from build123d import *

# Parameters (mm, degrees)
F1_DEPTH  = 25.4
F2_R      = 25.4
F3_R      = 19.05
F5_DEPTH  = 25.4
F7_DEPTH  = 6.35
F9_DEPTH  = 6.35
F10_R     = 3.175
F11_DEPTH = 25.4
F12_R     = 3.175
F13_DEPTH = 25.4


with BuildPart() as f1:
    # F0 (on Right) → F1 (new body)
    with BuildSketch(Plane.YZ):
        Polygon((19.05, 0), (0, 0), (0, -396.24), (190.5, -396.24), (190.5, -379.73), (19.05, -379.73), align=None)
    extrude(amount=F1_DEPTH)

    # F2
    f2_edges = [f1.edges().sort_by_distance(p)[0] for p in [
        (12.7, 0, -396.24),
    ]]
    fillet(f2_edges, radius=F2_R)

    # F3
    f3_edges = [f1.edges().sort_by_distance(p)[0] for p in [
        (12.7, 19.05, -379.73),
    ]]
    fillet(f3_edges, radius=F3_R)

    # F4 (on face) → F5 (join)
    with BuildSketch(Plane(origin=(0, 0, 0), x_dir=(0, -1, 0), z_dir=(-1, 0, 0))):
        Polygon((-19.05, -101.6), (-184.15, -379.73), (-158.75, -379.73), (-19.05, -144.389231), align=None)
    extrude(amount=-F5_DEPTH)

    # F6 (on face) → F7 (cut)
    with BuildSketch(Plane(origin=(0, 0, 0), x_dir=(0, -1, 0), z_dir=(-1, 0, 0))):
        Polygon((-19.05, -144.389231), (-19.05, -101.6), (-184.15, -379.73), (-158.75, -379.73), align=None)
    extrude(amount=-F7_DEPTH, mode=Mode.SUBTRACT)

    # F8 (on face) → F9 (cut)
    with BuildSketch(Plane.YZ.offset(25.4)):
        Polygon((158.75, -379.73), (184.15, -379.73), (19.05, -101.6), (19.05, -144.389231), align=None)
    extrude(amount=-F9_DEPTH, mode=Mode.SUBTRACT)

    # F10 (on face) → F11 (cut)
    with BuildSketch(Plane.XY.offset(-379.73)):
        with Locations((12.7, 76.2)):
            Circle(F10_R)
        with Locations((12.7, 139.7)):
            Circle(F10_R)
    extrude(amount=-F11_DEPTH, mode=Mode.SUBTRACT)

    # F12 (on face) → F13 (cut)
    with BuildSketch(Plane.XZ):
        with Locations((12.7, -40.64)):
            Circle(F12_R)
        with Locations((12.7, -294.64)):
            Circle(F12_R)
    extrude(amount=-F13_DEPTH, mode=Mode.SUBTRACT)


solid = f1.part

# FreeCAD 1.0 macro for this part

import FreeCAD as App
import Part
import Sketcher
from FreeCAD import Vector
Q = App.Units.Quantity


def edges_at(feature, points):
    """Names of the edges that pass closest to the given points."""
    edges = feature.Shape.Edges
    near = lambda p: min(range(len(edges)), key=lambda i: edges[i].distToShape(Part.Vertex(*p))[0])
    return sorted({f"Edge{near(p) + 1}" for p in points})

doc = App.newDocument("Part")
body = doc.addObject("PartDesign::Body", "Body")

# Sketch on YZ plane
sketch1 = doc.addObject("Sketcher::SketchObject", "Sketch")
body.addObject(sketch1)
sketch1.AttachmentSupport = (doc.YZ_Plane, [""])
sketch1.MapMode = "FlatFace"
sketch1.addGeometry([
    Part.LineSegment(Vector(19.05, 0, 0), Vector(0, 0, 0)),  # 0
    Part.LineSegment(Vector(0, 0, 0), Vector(0, -396.24, 0)),  # 1
    Part.LineSegment(Vector(0, -396.24, 0), Vector(190.5, -396.24, 0)),  # 2
    Part.LineSegment(Vector(190.5, -396.24, 0), Vector(190.5, -379.73, 0)),  # 3
    Part.LineSegment(Vector(190.5, -379.73, 0), Vector(19.05, -379.73, 0)),  # 4
    Part.LineSegment(Vector(19.05, -379.73, 0), Vector(19.05, 0, 0)),  # 5
], False)
sketch1.addConstraint([
    Sketcher.Constraint("Coincident", 0, 2, 1, 1),
    Sketcher.Constraint("Coincident", 1, 2, 2, 1),
    Sketcher.Constraint("Coincident", 2, 2, 3, 1),
    Sketcher.Constraint("Coincident", 3, 2, 4, 1),
    Sketcher.Constraint("Coincident", 4, 2, 5, 1),
    Sketcher.Constraint("Coincident", 5, 2, 0, 1),
    Sketcher.Constraint("Horizontal", 0),
    Sketcher.Constraint("Vertical", 1),
    Sketcher.Constraint("Horizontal", 2),
    Sketcher.Constraint("Vertical", 3),
    Sketcher.Constraint("Horizontal", 4),
    Sketcher.Constraint("Vertical", 5),
    Sketcher.Constraint("Coincident", 0, 2, -1, 1),
    Sketcher.Constraint("DistanceX", 2, 1, 2, 2, Q("7.5 in")),
    Sketcher.Constraint("DistanceY", 1, 2, 1, 1, Q("15.6 in")),
    Sketcher.Constraint("DistanceX", 0, 2, 0, 1, Q("0.75 in")),
    Sketcher.Constraint("DistanceY", 3, 1, 3, 2, Q("0.65 in")),
])
pad1 = doc.addObject("PartDesign::Pad", "Pad")
body.addObject(pad1)
pad1.Profile = sketch1
pad1.Length = Q("1 in")
doc.recompute()

fillet = doc.addObject("PartDesign::Fillet", "Fillet")
body.addObject(fillet)
fillet.Base = (pad1, edges_at(pad1, [(12.7, 0, -396.24)]))
fillet.Radius = Q("1 in")
doc.recompute()

fillet2 = doc.addObject("PartDesign::Fillet", "Fillet001")
body.addObject(fillet2)
fillet2.Base = (fillet, edges_at(fillet, [(12.7, 19.05, -379.73)]))
fillet2.Radius = Q("0.75 in")

# Sketch on YZ plane
sketch2 = doc.addObject("Sketcher::SketchObject", "Sketch001")
body.addObject(sketch2)
sketch2.AttachmentSupport = (doc.YZ_Plane, [""])
sketch2.MapMode = "FlatFace"
sketch2.addGeometry([
    Part.LineSegment(Vector(19.05, -101.6, 0), Vector(184.15, -379.73, 0)),
    Part.LineSegment(Vector(184.15, -379.73, 0), Vector(158.75, -379.73, 0)),
    Part.LineSegment(Vector(158.75, -379.73, 0), Vector(19.05, -144.389231, 0)),
    Part.LineSegment(Vector(19.05, -144.389231, 0), Vector(19.05, -101.6, 0)),
], False)
sketch2.addConstraint([
    Sketcher.Constraint("Coincident", 0, 2, 1, 1),
    Sketcher.Constraint("Coincident", 1, 2, 2, 1),
    Sketcher.Constraint("Coincident", 2, 2, 3, 1),
    Sketcher.Constraint("Coincident", 3, 2, 0, 1),
    Sketcher.Constraint("Horizontal", 1),
    Sketcher.Constraint("Vertical", 3),
    Sketcher.Constraint("Parallel", 0, 2),
    Sketcher.Constraint("DistanceX", 1, 2, 1, 1, Q("1 in")),
    Sketcher.Constraint("DistanceY", 3, 2, -1, 1, Q("4 in")),
    Sketcher.Constraint("DistanceX", 2, 2, 1, 2, Q("5.5 in")),
    Sketcher.Constraint("DistanceX", -1, 1, 0, 2, Q("7.25 in")),
    Sketcher.Constraint("DistanceY", 0, 2, -1, 1, Q("14.95 in")),
])
pad2 = doc.addObject("PartDesign::Pad", "Pad001")
body.addObject(pad2)
pad2.Profile = sketch2
pad2.Length = Q("1 in")

# Sketch on YZ plane
sketch3 = doc.addObject("Sketcher::SketchObject", "Sketch002")
body.addObject(sketch3)
sketch3.AttachmentSupport = (doc.YZ_Plane, [""])
sketch3.MapMode = "FlatFace"
sketch3.addGeometry([
    Part.LineSegment(Vector(19.05, -144.389231, 0), Vector(19.05, -101.6, 0)),
    Part.LineSegment(Vector(19.05, -101.6, 0), Vector(184.15, -379.73, 0)),
    Part.LineSegment(Vector(184.15, -379.73, 0), Vector(158.75, -379.73, 0)),
    Part.LineSegment(Vector(158.75, -379.73, 0), Vector(19.05, -144.389231, 0)),
], False)
sketch3.addConstraint([
    Sketcher.Constraint("Coincident", 0, 2, 1, 1),
    Sketcher.Constraint("Coincident", 1, 2, 2, 1),
    Sketcher.Constraint("Coincident", 2, 2, 3, 1),
    Sketcher.Constraint("Coincident", 3, 2, 0, 1),
    Sketcher.Constraint("Vertical", 0),
    Sketcher.Constraint("Horizontal", 2),
    Sketcher.Constraint("Parallel", 1, 3),
    Sketcher.Constraint("DistanceX", 2, 2, 2, 1, Q("1 in")),
    Sketcher.Constraint("DistanceY", 0, 2, -1, 1, Q("4 in")),
    Sketcher.Constraint("DistanceX", 0, 2, 1, 2, Q("6.5 in")),
    Sketcher.Constraint("DistanceX", -1, 1, 0, 2, Q("0.75 in")),
    Sketcher.Constraint("DistanceY", 1, 2, -1, 1, Q("14.95 in")),
])
pocket1 = doc.addObject("PartDesign::Pocket", "Pocket")
body.addObject(pocket1)
pocket1.Profile = sketch3
pocket1.Length = Q("0.25 in")
pocket1.Reversed = True

# Sketch on YZ plane
sketch4 = doc.addObject("Sketcher::SketchObject", "Sketch003")
body.addObject(sketch4)
sketch4.AttachmentSupport = (doc.YZ_Plane, [""])
sketch4.MapMode = "FlatFace"
sketch4.AttachmentOffset = App.Placement(Vector(0, 0, 1 * 25.4), App.Rotation())
sketch4.addGeometry([
    Part.LineSegment(Vector(158.75, -379.73, 0), Vector(184.15, -379.73, 0)),
    Part.LineSegment(Vector(184.15, -379.73, 0), Vector(19.05, -101.6, 0)),
    Part.LineSegment(Vector(19.05, -101.6, 0), Vector(19.05, -144.389231, 0)),
    Part.LineSegment(Vector(19.05, -144.389231, 0), Vector(158.75, -379.73, 0)),
], False)
sketch4.addConstraint([
    Sketcher.Constraint("Coincident", 0, 2, 1, 1),
    Sketcher.Constraint("Coincident", 1, 2, 2, 1),
    Sketcher.Constraint("Coincident", 2, 2, 3, 1),
    Sketcher.Constraint("Coincident", 3, 2, 0, 1),
    Sketcher.Constraint("Horizontal", 0),
    Sketcher.Constraint("Vertical", 2),
    Sketcher.Constraint("Parallel", 1, 3),
    Sketcher.Constraint("DistanceX", 0, 1, 0, 2, Q("1 in")),
    Sketcher.Constraint("DistanceY", 1, 2, -1, 1, Q("4 in")),
    Sketcher.Constraint("DistanceX", 1, 2, 0, 2, Q("6.5 in")),
    Sketcher.Constraint("DistanceX", -1, 1, 0, 2, Q("7.25 in")),
    Sketcher.Constraint("DistanceY", 0, 2, -1, 1, Q("14.95 in")),
])
pocket2 = doc.addObject("PartDesign::Pocket", "Pocket001")
body.addObject(pocket2)
pocket2.Profile = sketch4
pocket2.Length = Q("0.25 in")

# Sketch on XY plane
sketch5 = doc.addObject("Sketcher::SketchObject", "Sketch004")
body.addObject(sketch5)
sketch5.AttachmentSupport = (doc.XY_Plane, [""])
sketch5.MapMode = "FlatFace"
sketch5.AttachmentOffset = App.Placement(Vector(0, 0, -14.95 * 25.4), App.Rotation())
sketch5.addGeometry([
    Part.Circle(Vector(12.7, 76.2, 0), Vector(0, 0, 1), 3.175),
    Part.Circle(Vector(12.7, 139.7, 0), Vector(0, 0, 1), 3.175),
], False)
sketch5.addConstraint([
    Sketcher.Constraint("Equal", 0, 1),
    Sketcher.Constraint("Vertical", 0, 3, 1, 3),
    Sketcher.Constraint("Diameter", 0, Q("0.25 in")),
    Sketcher.Constraint("DistanceY", -1, 1, 0, 3, Q("3 in")),
    Sketcher.Constraint("DistanceX", -1, 1, 0, 3, Q("0.5 in")),
    Sketcher.Constraint("DistanceY", -1, 1, 1, 3, Q("5.5 in")),
])
pocket3 = doc.addObject("PartDesign::Pocket", "Pocket002")
body.addObject(pocket3)
pocket3.Profile = sketch5
pocket3.Length = Q("1 in")

# Sketch on XZ plane
sketch6 = doc.addObject("Sketcher::SketchObject", "Sketch005")
body.addObject(sketch6)
sketch6.AttachmentSupport = (doc.XZ_Plane, [""])
sketch6.MapMode = "FlatFace"
sketch6.addGeometry([
    Part.Circle(Vector(12.7, -40.64, 0), Vector(0, 0, 1), 3.175),
    Part.Circle(Vector(12.7, -294.64, 0), Vector(0, 0, 1), 3.175),
], False)
sketch6.addConstraint([
    Sketcher.Constraint("Equal", 0, 1),
    Sketcher.Constraint("Vertical", 0, 3, 1, 3),
    Sketcher.Constraint("Diameter", 0, Q("0.25 in")),
    Sketcher.Constraint("DistanceY", 1, 3, 0, 3, Q("10 in")),
    Sketcher.Constraint("DistanceX", -1, 1, 0, 3, Q("0.5 in")),
    Sketcher.Constraint("DistanceY", 0, 3, -1, 1, Q("1.6 in")),
])
pocket4 = doc.addObject("PartDesign::Pocket", "Pocket003")
body.addObject(pocket4)
pocket4.Profile = sketch6
pocket4.Length = Q("1 in")

doc.recompute()
